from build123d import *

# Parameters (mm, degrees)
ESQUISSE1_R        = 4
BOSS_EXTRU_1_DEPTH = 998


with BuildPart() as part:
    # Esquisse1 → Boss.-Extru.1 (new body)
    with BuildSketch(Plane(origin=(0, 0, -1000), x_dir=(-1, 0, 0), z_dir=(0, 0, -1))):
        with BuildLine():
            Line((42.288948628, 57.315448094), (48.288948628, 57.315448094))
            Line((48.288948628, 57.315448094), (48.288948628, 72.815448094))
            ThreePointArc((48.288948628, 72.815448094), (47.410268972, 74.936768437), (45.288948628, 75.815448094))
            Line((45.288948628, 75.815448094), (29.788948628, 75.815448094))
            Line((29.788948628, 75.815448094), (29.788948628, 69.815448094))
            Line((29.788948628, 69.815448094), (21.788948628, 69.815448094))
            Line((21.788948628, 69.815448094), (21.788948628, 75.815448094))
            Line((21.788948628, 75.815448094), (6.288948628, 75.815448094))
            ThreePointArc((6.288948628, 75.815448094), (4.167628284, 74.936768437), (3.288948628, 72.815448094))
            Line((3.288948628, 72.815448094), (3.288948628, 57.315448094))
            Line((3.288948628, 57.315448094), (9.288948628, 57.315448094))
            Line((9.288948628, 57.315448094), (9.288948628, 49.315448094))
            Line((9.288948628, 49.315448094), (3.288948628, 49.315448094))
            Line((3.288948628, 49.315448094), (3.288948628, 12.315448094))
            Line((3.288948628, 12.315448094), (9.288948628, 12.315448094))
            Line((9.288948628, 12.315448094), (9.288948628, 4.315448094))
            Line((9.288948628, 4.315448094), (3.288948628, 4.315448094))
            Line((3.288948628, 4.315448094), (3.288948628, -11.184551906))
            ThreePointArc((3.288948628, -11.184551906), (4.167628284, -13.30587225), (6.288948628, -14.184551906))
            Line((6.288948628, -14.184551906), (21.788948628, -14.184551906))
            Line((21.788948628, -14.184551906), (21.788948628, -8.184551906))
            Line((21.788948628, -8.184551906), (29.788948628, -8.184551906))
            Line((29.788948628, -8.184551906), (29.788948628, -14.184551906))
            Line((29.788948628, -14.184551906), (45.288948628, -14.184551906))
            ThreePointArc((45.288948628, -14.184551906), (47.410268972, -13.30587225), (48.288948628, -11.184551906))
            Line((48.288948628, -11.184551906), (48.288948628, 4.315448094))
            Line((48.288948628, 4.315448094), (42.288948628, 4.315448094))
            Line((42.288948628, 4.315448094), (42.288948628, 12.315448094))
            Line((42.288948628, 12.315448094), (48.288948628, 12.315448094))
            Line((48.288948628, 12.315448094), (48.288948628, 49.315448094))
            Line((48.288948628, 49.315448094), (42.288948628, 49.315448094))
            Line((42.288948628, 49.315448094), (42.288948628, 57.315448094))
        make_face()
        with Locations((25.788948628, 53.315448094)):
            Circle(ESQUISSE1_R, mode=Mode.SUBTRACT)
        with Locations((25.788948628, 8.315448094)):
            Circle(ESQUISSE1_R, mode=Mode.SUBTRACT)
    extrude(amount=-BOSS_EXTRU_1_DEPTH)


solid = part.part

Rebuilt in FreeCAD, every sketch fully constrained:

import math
import FreeCAD as App
import Part
import Sketcher
from FreeCAD import Vector
Q = App.Units.Quantity

doc = App.newDocument("Part")
body = doc.addObject("PartDesign::Body", "Body")

# Sketch on XY plane
sketch1 = body.newObject("Sketcher::SketchObject", "Sketch")
sketch1.AttachmentSupport = (doc.getObject("XY_Plane"), [""])
sketch1.MapMode = "FlatFace"
sketch1.AttachmentOffset = App.Placement(Vector(0, 0, -1000), App.Rotation())
sketch1.addGeometry([
    Part.LineSegment(Vector(-42.288949, 57.315448, 0), Vector(-48.288949, 57.315448, 0)),  # 0
    Part.LineSegment(Vector(-48.288949, 57.315448, 0), Vector(-48.288949, 72.815448, 0)),  # 1
    Part.ArcOfCircle(Part.Circle(Vector(-45.288949, 72.815448, 0), Vector(0, 0, 1), 3), math.radians(90), math.radians(180)),  # 2
    Part.LineSegment(Vector(-45.288949, 75.815448, 0), Vector(-29.788949, 75.815448, 0)),  # 3
    Part.LineSegment(Vector(-29.788949, 75.815448, 0), Vector(-29.788949, 69.815448, 0)),  # 4
    Part.LineSegment(Vector(-29.788949, 69.815448, 0), Vector(-21.788949, 69.815448, 0)),  # 5
    Part.LineSegment(Vector(-21.788949, 69.815448, 0), Vector(-21.788949, 75.815448, 0)),  # 6
    Part.LineSegment(Vector(-21.788949, 75.815448, 0), Vector(-6.288949, 75.815448, 0)),  # 7
    Part.ArcOfCircle(Part.Circle(Vector(-6.288949, 72.815448, 0), Vector(0, 0, 1), 3), math.radians(0), math.radians(90)),  # 8
    Part.LineSegment(Vector(-3.288949, 72.815448, 0), Vector(-3.288949, 57.315448, 0)),  # 9
    Part.LineSegment(Vector(-3.288949, 57.315448, 0), Vector(-9.288949, 57.315448, 0)),  # 10
    Part.LineSegment(Vector(-9.288949, 57.315448, 0), Vector(-9.288949, 49.315448, 0)),  # 11
    Part.LineSegment(Vector(-9.288949, 49.315448, 0), Vector(-3.288949, 49.315448, 0)),  # 12
    Part.LineSegment(Vector(-3.288949, 49.315448, 0), Vector(-3.288949, 12.315448, 0)),  # 13
    Part.LineSegment(Vector(-3.288949, 12.315448, 0), Vector(-9.288949, 12.315448, 0)),  # 14
    Part.LineSegment(Vector(-9.288949, 12.315448, 0), Vector(-9.288949, 4.315448, 0)),  # 15
    Part.LineSegment(Vector(-9.288949, 4.315448, 0), Vector(-3.288949, 4.315448, 0)),  # 16
    Part.LineSegment(Vector(-3.288949, 4.315448, 0), Vector(-3.288949, -11.184552, 0)),  # 17
    Part.ArcOfCircle(Part.Circle(Vector(-6.288949, -11.184552, 0), Vector(0, 0, 1), 3), math.radians(-90), math.radians(0)),  # 18
    Part.LineSegment(Vector(-6.288949, -14.184552, 0), Vector(-21.788949, -14.184552, 0)),  # 19
    Part.LineSegment(Vector(-21.788949, -14.184552, 0), Vector(-21.788949, -8.184552, 0)),  # 20
    Part.LineSegment(Vector(-21.788949, -8.184552, 0), Vector(-29.788949, -8.184552, 0)),  # 21
    Part.LineSegment(Vector(-29.788949, -8.184552, 0), Vector(-29.788949, -14.184552, 0)),  # 22
    Part.LineSegment(Vector(-29.788949, -14.184552, 0), Vector(-45.288949, -14.184552, 0)),  # 23
    Part.ArcOfCircle(Part.Circle(Vector(-45.288949, -11.184552, 0), Vector(0, 0, 1), 3), math.radians(180), math.radians(270)),  # 24
    Part.LineSegment(Vector(-48.288949, -11.184552, 0), Vector(-48.288949, 4.315448, 0)),  # 25
    Part.LineSegment(Vector(-48.288949, 4.315448, 0), Vector(-42.288949, 4.315448, 0)),  # 26
    Part.LineSegment(Vector(-42.288949, 4.315448, 0), Vector(-42.288949, 12.315448, 0)),  # 27
    Part.LineSegment(Vector(-42.288949, 12.315448, 0), Vector(-48.288949, 12.315448, 0)),  # 28
    Part.LineSegment(Vector(-48.288949, 12.315448, 0), Vector(-48.288949, 49.315448, 0)),  # 29
    Part.LineSegment(Vector(-48.288949, 49.315448, 0), Vector(-42.288949, 49.315448, 0)),  # 30
    Part.LineSegment(Vector(-42.288949, 49.315448, 0), Vector(-42.288949, 57.315448, 0)),  # 31
    Part.Circle(Vector(-25.788949, 8.315448, 0), Vector(0, 0, 1), 4),  # 32
    Part.Circle(Vector(-25.788949, 53.315448, 0), Vector(0, 0, 1), 4),  # 33
], False)
sketch1.addConstraint([
    Sketcher.Constraint("Coincident", 0, 2, 1, 1),
    Sketcher.Constraint("Tangent", 1, 2, 2, 2),
    Sketcher.Constraint("Tangent", 2, 1, 3, 1),
    Sketcher.Constraint("Coincident", 3, 2, 4, 1),
    Sketcher.Constraint("Coincident", 4, 2, 5, 1),
    Sketcher.Constraint("Coincident", 5, 2, 6, 1),
    Sketcher.Constraint("Coincident", 6, 2, 7, 1),
    Sketcher.Constraint("Tangent", 7, 2, 8, 2),
    Sketcher.Constraint("Tangent", 8, 1, 9, 1),
    Sketcher.Constraint("Coincident", 9, 2, 10, 1),
    Sketcher.Constraint("Coincident", 10, 2, 11, 1),
    Sketcher.Constraint("Coincident", 11, 2, 12, 1),
    Sketcher.Constraint("Coincident", 12, 2, 13, 1),
    Sketcher.Constraint("Coincident", 13, 2, 14, 1),
    Sketcher.Constraint("Coincident", 14, 2, 15, 1),
    Sketcher.Constraint("Coincident", 15, 2, 16, 1),
    Sketcher.Constraint("Coincident", 16, 2, 17, 1),
    Sketcher.Constraint("Tangent", 17, 2, 18, 2),
    Sketcher.Constraint("Tangent", 18, 1, 19, 1),
    Sketcher.Constraint("Coincident", 19, 2, 20, 1),
    Sketcher.Constraint("Coincident", 20, 2, 21, 1),
    Sketcher.Constraint("Coincident", 21, 2, 22, 1),
    Sketcher.Constraint("Coincident", 22, 2, 23, 1),
    Sketcher.Constraint("Tangent", 23, 2, 24, 2),
    Sketcher.Constraint("Tangent", 24, 1, 25, 1),
    Sketcher.Constraint("Coincident", 25, 2, 26, 1),
    Sketcher.Constraint("Coincident", 26, 2, 27, 1),
    Sketcher.Constraint("Coincident", 27, 2, 28, 1),
    Sketcher.Constraint("Coincident", 28, 2, 29, 1),
    Sketcher.Constraint("Coincident", 29, 2, 30, 1),
    Sketcher.Constraint("Coincident", 30, 2, 31, 1),
    Sketcher.Constraint("Coincident", 31, 2, 0, 1),
    Sketcher.Constraint("Horizontal", 0),
    Sketcher.Constraint("Vertical", 1),
    Sketcher.Constraint("Horizontal", 3),
    Sketcher.Constraint("Vertical", 4),
    Sketcher.Constraint("Horizontal", 5),
    Sketcher.Constraint("Vertical", 6),
    Sketcher.Constraint("Horizontal", 7),
    Sketcher.Constraint("Vertical", 9),
    Sketcher.Constraint("Horizontal", 10),
    Sketcher.Constraint("Vertical", 11),
    Sketcher.Constraint("Horizontal", 12),
    Sketcher.Constraint("Vertical", 13),
    Sketcher.Constraint("Horizontal", 14),
    Sketcher.Constraint("Vertical", 15),
    Sketcher.Constraint("Horizontal", 16),
    Sketcher.Constraint("Vertical", 17),
    Sketcher.Constraint("Horizontal", 19),
    Sketcher.Constraint("Vertical", 20),
    Sketcher.Constraint("Horizontal", 21),
    Sketcher.Constraint("Vertical", 22),
    Sketcher.Constraint("Horizontal", 23),
    Sketcher.Constraint("Vertical", 25),
    Sketcher.Constraint("Horizontal", 26),
    Sketcher.Constraint("Vertical", 27),
    Sketcher.Constraint("Horizontal", 28),
    Sketcher.Constraint("Vertical", 29),
    Sketcher.Constraint("Horizontal", 30),
    Sketcher.Constraint("Vertical", 31),
    Sketcher.Constraint("Equal", 2, 8),
    Sketcher.Constraint("Equal", 8, 18),
    Sketcher.Constraint("Equal", 18, 24),
    Sketcher.Constraint("Equal", 32, 33),
    Sketcher.Constraint("Horizontal", 2, 3, 8, 3),
    Sketcher.Constraint("Horizontal", 18, 3, 24, 3),
    Sketcher.Constraint("Horizontal", 0, 2, 9, 2),
    Sketcher.Constraint("Horizontal", 16, 2, 25, 2),
    Sketcher.Constraint("Horizontal", 14, 2, 27, 2),
    Sketcher.Constraint("Horizontal", 12, 2, 29, 2),
    Sketcher.Constraint("Vertical", 8, 3, 18, 3),
    Sketcher.Constraint("Vertical", 2, 3, 24, 3),
    Sketcher.Constraint("Vertical", 32, 3, 33, 3),
    Sketcher.Constraint("Vertical", 9, 2, 12, 2),
    Sketcher.Constraint("Vertical", 11, 2, 14, 2),
    Sketcher.Constraint("Vertical", 6, 2, 19, 2),
    Sketcher.Constraint("Vertical", 4, 2, 21, 2),
    Sketcher.Constraint("Vertical", 25, 2, 28, 2),
    Sketcher.Constraint("Vertical", 27, 2, 30, 2),
    Sketcher.Constraint("Equal", 3, 7),
    Sketcher.Constraint("Equal", 0, 10),
    Sketcher.Constraint("Equal", 23, 1),
    Sketcher.Constraint("Equal", 30, 4),
    Sketcher.Constraint("Equal", 21, 11),
    Sketcher.Constraint("Equal", 11, 15),
    Sketcher.Constraint("Equal", 9, 17),
    Sketcher.Constraint("Equal", 6, 20),
    Sketcher.Constraint("Diameter", 32, Q("8 mm")),
    Sketcher.Constraint("Radius", 2, Q("3 mm")),
    Sketcher.Constraint("DistanceX", 0, 2, 0, 1, Q("6 mm")),
    Sketcher.Constraint("DistanceX", 5, 1, 5, 2, Q("8 mm")),
    Sketcher.Constraint("DistanceY", 13, 2, 13, 1, Q("37 mm")),
    Sketcher.Constraint("DistanceX", 3, 1, 3, 2, Q("15.5 mm")),
    Sketcher.Constraint("DistanceY", 32, 3, 33, 3, Q("45 mm")),
    Sketcher.Constraint("DistanceY", 33, 3, 0, 2, Q("4 mm")),
    Sketcher.Constraint("DistanceX", 3, 2, 33, 3, Q("4 mm")),
    Sketcher.Constraint("DistanceX", 2, 3, -1, 1, Q("45.288949 mm")),
    Sketcher.Constraint("DistanceY", -1, 1, 2, 3, Q("72.815448 mm")),
])
pad1 = body.newObject("PartDesign::Pad", "Pad")
pad1.Profile = sketch1
pad1.Length = 998

doc.recompute()
